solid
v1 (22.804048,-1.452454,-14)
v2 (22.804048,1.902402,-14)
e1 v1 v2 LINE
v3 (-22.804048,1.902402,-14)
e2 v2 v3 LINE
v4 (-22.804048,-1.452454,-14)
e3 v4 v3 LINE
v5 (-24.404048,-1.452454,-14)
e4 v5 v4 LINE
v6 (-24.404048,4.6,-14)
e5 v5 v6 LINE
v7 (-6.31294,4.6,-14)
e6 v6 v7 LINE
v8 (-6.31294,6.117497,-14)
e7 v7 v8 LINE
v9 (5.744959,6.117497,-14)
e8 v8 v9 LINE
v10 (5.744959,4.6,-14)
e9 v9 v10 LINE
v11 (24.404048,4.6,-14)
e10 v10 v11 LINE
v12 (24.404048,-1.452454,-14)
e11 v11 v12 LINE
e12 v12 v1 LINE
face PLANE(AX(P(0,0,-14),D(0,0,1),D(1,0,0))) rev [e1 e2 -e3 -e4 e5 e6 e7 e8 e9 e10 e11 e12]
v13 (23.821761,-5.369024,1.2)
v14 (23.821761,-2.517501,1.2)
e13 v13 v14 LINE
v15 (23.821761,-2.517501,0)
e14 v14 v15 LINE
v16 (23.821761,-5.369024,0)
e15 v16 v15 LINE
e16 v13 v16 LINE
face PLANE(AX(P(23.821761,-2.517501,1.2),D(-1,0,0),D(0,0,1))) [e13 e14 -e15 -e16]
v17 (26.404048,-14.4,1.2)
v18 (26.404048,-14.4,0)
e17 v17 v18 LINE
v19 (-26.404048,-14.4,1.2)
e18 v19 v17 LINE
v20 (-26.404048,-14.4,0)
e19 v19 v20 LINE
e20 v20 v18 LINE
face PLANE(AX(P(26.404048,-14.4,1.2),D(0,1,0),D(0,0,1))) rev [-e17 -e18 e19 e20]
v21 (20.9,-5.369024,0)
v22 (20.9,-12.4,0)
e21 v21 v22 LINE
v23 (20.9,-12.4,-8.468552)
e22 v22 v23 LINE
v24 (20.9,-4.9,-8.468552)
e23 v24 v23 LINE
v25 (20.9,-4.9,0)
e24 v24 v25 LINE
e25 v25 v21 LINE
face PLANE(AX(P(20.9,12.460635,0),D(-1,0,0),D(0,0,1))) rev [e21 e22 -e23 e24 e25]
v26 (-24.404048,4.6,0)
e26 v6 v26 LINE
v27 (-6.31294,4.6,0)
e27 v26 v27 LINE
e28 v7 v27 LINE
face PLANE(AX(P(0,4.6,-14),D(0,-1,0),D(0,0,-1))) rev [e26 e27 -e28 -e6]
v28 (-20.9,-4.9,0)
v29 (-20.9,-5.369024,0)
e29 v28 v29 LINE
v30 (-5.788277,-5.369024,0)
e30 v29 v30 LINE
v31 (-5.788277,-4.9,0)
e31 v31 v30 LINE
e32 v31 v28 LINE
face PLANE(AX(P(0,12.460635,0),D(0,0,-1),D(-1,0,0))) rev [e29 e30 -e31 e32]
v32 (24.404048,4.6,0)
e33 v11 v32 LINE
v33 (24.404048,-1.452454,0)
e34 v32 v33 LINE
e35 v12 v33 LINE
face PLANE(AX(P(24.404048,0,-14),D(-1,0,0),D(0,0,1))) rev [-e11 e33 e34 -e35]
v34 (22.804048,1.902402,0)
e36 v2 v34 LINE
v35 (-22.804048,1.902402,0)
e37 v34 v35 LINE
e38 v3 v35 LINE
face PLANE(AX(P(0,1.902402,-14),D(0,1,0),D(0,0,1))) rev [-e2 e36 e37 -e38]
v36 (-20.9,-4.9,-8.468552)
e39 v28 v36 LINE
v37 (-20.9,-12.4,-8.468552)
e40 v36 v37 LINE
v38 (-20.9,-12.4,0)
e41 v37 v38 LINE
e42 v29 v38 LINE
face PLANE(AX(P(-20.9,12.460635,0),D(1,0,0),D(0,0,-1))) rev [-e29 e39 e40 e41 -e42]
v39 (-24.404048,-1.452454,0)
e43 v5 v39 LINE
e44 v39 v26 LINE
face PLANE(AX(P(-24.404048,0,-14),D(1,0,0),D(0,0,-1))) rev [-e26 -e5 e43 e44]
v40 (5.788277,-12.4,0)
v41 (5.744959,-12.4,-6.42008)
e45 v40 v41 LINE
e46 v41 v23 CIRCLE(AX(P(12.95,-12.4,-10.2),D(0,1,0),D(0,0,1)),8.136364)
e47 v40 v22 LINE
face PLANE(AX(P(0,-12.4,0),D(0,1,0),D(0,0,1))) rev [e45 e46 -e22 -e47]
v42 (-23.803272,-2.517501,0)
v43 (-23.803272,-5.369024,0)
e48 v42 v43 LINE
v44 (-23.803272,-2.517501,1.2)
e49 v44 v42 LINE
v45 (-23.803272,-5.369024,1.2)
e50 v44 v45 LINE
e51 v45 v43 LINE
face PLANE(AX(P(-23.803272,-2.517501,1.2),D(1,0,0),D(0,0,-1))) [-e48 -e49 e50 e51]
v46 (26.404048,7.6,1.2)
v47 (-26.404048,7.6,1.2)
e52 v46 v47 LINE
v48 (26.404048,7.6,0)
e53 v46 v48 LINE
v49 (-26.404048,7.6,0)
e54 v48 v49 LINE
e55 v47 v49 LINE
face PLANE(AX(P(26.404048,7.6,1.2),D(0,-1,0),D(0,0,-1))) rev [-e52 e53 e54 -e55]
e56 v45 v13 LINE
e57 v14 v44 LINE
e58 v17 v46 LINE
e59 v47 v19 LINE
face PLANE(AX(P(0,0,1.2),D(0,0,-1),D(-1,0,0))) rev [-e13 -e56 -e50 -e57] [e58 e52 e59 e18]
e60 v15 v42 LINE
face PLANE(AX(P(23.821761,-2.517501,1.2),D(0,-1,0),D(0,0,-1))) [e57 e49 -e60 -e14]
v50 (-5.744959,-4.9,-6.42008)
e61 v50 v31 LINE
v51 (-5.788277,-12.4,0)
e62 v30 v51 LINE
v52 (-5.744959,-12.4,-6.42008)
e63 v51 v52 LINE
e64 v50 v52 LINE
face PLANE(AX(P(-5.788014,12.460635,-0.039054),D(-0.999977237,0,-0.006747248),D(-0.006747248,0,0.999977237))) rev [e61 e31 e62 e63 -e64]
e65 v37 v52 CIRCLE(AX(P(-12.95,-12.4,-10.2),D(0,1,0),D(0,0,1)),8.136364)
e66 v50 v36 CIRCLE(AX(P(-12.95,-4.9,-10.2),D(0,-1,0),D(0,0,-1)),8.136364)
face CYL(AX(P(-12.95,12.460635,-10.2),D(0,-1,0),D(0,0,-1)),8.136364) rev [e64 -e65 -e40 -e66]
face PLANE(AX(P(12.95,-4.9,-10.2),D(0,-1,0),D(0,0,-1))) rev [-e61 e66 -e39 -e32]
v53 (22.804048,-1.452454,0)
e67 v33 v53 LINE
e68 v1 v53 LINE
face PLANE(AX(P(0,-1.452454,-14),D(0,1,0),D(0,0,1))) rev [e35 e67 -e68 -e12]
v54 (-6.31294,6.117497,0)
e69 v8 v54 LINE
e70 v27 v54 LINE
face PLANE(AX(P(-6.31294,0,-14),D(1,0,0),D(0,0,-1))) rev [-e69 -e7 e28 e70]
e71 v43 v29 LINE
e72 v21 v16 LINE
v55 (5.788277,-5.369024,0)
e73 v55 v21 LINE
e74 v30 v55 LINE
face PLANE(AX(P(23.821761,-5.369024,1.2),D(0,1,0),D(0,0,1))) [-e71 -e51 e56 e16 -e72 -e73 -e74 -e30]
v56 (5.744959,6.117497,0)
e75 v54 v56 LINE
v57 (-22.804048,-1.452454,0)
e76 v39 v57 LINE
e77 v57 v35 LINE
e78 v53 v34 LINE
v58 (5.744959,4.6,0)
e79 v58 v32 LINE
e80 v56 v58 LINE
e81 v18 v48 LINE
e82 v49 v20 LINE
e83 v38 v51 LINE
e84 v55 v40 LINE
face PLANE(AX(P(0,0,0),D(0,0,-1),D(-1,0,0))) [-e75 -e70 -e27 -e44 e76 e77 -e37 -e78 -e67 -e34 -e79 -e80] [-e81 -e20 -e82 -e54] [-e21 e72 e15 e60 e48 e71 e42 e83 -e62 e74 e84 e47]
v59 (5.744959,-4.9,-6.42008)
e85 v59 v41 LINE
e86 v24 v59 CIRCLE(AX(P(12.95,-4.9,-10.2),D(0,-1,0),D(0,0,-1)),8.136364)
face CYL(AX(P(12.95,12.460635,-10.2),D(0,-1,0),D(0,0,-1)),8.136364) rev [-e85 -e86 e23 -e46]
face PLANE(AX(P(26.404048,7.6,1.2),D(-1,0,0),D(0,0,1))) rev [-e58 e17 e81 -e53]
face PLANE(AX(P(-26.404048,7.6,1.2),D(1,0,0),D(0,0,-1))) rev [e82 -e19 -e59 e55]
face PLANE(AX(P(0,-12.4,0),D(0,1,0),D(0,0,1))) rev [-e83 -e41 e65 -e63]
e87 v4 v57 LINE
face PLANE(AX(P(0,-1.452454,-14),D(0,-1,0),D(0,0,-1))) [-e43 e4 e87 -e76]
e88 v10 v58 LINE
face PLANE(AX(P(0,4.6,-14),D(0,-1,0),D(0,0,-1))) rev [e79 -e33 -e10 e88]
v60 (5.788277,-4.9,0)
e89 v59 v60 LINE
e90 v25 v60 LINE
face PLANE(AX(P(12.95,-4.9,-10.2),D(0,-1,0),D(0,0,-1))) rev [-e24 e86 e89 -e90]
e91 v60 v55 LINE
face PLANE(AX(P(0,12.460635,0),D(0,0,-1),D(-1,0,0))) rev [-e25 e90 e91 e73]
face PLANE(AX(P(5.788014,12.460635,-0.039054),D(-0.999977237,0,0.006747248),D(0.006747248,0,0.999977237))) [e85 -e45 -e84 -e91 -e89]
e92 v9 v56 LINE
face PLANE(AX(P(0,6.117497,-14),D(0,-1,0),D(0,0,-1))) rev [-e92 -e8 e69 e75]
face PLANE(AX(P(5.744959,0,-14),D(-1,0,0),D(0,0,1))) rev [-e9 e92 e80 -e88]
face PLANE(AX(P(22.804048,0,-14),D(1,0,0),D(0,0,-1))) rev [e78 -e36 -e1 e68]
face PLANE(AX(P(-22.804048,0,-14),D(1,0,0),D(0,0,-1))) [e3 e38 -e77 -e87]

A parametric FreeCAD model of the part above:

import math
import FreeCAD as App
import Part
import Sketcher
from FreeCAD import Vector
Q = App.Units.Quantity

doc = App.newDocument("Part")
body = doc.addObject("PartDesign::Body", "Body")

sketch1 = body.newObject("Sketcher::SketchObject", "Sketch")
sketch1.AttachmentSupport = (doc.getObject("XZ_Plane"), [""])
sketch1.MapMode = "FlatFace"
sketch1.AttachmentOffset = App.Placement(Vector(0, 0, 12.4), App.Rotation())
sketch1.addGeometry([
    Part.LineSegment(Vector(20.9, 0, 0), Vector(20.9, -8.468552, 0)),
    Part.ArcOfCircle(Part.Circle(Vector(12.95, -10.2, 0), Vector(0, 0, 1), 8.136364), math.radians(12.286708), math.radians(152.31753)),
    Part.LineSegment(Vector(5.744959, -6.42008, 0), Vector(5.788277, 0, 0)),
    Part.LineSegment(Vector(5.788277, 0, 0), Vector(20.9, 0, 0)),
], False)
sketch1.addConstraint([
    Sketcher.Constraint("Coincident", 0, 2, 1, 1),
    Sketcher.Constraint("Coincident", 1, 2, 2, 1),
    Sketcher.Constraint("Coincident", 2, 2, 3, 1),
    Sketcher.Constraint("Coincident", 3, 2, 0, 1),
    Sketcher.Constraint("Vertical", 0),
    Sketcher.Constraint("Horizontal", 3),
    Sketcher.Constraint("PointOnObject", 2, 2, -1),
    Sketcher.Constraint("DistanceY", 1, 3, -1, 1, Q("10.2 mm")),
    Sketcher.Constraint("DistanceX", -1, 1, 0, 2, Q("20.9 mm")),
    Sketcher.Constraint("DistanceX", -1, 1, 1, 3, Q("12.95 mm")),
    Sketcher.Constraint("Radius", 1, Q("8.136364 mm")),
    Sketcher.Constraint("DistanceX", 3, 1, 3, 2, Q("15.111723 mm")),
    Sketcher.Constraint("DistanceX", -1, 1, 1, 2, Q("5.744959 mm")),
])
pad1 = body.newObject("PartDesign::Pad", "Pad")
pad1.Profile = sketch1
pad1.Length = 7.5
pad1.Reversed = True
body2 = doc.addObject("PartDesign::Body", "Body001")

sketch2 = body2.newObject("Sketcher::SketchObject", "Sketch001")
sketch2.AttachmentSupport = (doc.getObject("XZ_Plane001"), [""])
sketch2.MapMode = "FlatFace"
sketch2.AttachmentOffset = App.Placement(Vector(0, 0, 12.4), App.Rotation())
sketch2.addGeometry([
    Part.ArcOfCircle(Part.Circle(Vector(-12.95, -10.2, 0), Vector(0, 0, 1), 8.136364), math.radians(27.68247), math.radians(167.713292)),
    Part.LineSegment(Vector(-20.9, -8.468552, 0), Vector(-20.9, 0, 0)),
    Part.LineSegment(Vector(-20.9, 0, 0), Vector(-5.788277, 0, 0)),
    Part.LineSegment(Vector(-5.788277, 0, 0), Vector(-5.744959, -6.42008, 0)),
], False)
sketch2.addConstraint([
    Sketcher.Constraint("Coincident", 0, 2, 1, 1),
    Sketcher.Constraint("Coincident", 1, 2, 2, 1),
    Sketcher.Constraint("Coincident", 2, 2, 3, 1),
    Sketcher.Constraint("Coincident", 3, 2, 0, 1),
    Sketcher.Constraint("Vertical", 1),
    Sketcher.Constraint("Horizontal", 2),
    Sketcher.Constraint("PointOnObject", 1, 2, -1),
    Sketcher.Constraint("DistanceY", 0, 3, -1, 1, Q("10.2 mm")),
    Sketcher.Constraint("DistanceX", 0, 2, -1, 1, Q("20.9 mm")),
    Sketcher.Constraint("DistanceX", 0, 3, -1, 1, Q("12.95 mm")),
    Sketcher.Constraint("Radius", 0, Q("8.136364 mm")),
    Sketcher.Constraint("DistanceX", 2, 1, 2, 2, Q("15.111723 mm")),
    Sketcher.Constraint("DistanceX", 3, 2, -1, 1, Q("5.744959 mm")),
])
pad2 = body2.newObject("PartDesign::Pad", "Pad001")
pad2.Profile = sketch2
pad2.Length = 7.5
pad2.Reversed = True
body3 = doc.addObject("PartDesign::Body", "Body002")

sketch3 = body3.newObject("Sketcher::SketchObject", "Sketch002")
sketch3.AttachmentSupport = (doc.getObject("XY_Plane002"), [""])
sketch3.MapMode = "FlatFace"
sketch3.addGeometry([
    Part.LineSegment(Vector(24.404048, -1.452454, 0), Vector(24.404048, 4.6, 0)),
    Part.LineSegment(Vector(24.404048, 4.6, 0), Vector(5.744959, 4.6, 0)),
    Part.LineSegment(Vector(5.744959, 4.6, 0), Vector(5.744959, 6.117497, 0)),
    Part.LineSegment(Vector(5.744959, 6.117497, 0), Vector(-6.31294, 6.117497, 0)),
    Part.LineSegment(Vector(-6.31294, 6.117497, 0), Vector(-6.31294, 4.6, 0)),
    Part.LineSegment(Vector(-6.31294, 4.6, 0), Vector(-24.404048, 4.6, 0)),
    Part.LineSegment(Vector(-24.404048, 4.6, 0), Vector(-24.404048, -1.452454, 0)),
    Part.LineSegment(Vector(-24.404048, -1.452454, 0), Vector(-22.804048, -1.452454, 0)),
    Part.LineSegment(Vector(-22.804048, -1.452454, 0), Vector(-22.804048, 1.902402, 0)),
    Part.LineSegment(Vector(-22.804048, 1.902402, 0), Vector(22.804048, 1.902402, 0)),
    Part.LineSegment(Vector(22.804048, 1.902402, 0), Vector(22.804048, -1.452454, 0)),
    Part.LineSegment(Vector(22.804048, -1.452454, 0), Vector(24.404048, -1.452454, 0)),
], False)
sketch3.addConstraint([
    Sketcher.Constraint("Coincident", 0, 2, 1, 1),
    Sketcher.Constraint("Coincident", 1, 2, 2, 1),
    Sketcher.Constraint("Coincident", 2, 2, 3, 1),
    Sketcher.Constraint("Coincident", 3, 2, 4, 1),
    Sketcher.Constraint("Coincident", 4, 2, 5, 1),
    Sketcher.Constraint("Coincident", 5, 2, 6, 1),
    Sketcher.Constraint("Coincident", 6, 2, 7, 1),
    Sketcher.Constraint("Coincident", 7, 2, 8, 1),
    Sketcher.Constraint("Coincident", 8, 2, 9, 1),
    Sketcher.Constraint("Coincident", 9, 2, 10, 1),
    Sketcher.Constraint("Coincident", 10, 2, 11, 1),
    Sketcher.Constraint("Coincident", 11, 2, 0, 1),
    Sketcher.Constraint("Vertical", 0),
    Sketcher.Constraint("Horizontal", 1),
    Sketcher.Constraint("Vertical", 2),
    Sketcher.Constraint("Horizontal", 3),
    Sketcher.Constraint("Vertical", 4),
    Sketcher.Constraint("Horizontal", 5),
    Sketcher.Constraint("Vertical", 6),
    Sketcher.Constraint("Horizontal", 7),
    Sketcher.Constraint("Vertical", 8),
    Sketcher.Constraint("Horizontal", 9),
    Sketcher.Constraint("Vertical", 10),
    Sketcher.Constraint("Horizontal", 11),
    Sketcher.Constraint("Symmetric", 0, 2, 5, 2, -2),
    Sketcher.Constraint("Symmetric", 7, 2, 10, 2, -2),
    Sketcher.Constraint("DistanceX", 7, 1, 7, 2, Q("1.6 mm")),
    Sketcher.Constraint("DistanceY", -1, 1, 0, 2, Q("4.6 mm")),
    Sketcher.Constraint("DistanceX", 3, 2, 3, 1, Q("12.057899 mm")),
    Sketcher.Constraint("DistanceX", 1, 2, 1, 1, Q("18.659089 mm")),
    Sketcher.Constraint("DistanceX", 5, 2, 5, 1, Q("18.091107 mm")),
    Sketcher.Constraint("DistanceY", 0, 1, 0, 2, Q("6.052454 mm")),
    Sketcher.Constraint("DistanceY", 2, 1, 2, 2, Q("1.517497 mm")),
    Sketcher.Constraint("DistanceY", 8, 1, 8, 2, Q("3.354856 mm")),
])
pad3 = body3.newObject("PartDesign::Pad", "Pad002")
pad3.Profile = sketch3
pad3.Length = 14
pad3.Reversed = True
body.AllowCompound = True
doc.recompute()

boolean = body.newObject("PartDesign::Boolean", "Boolean")
boolean.Type = "Fuse"
boolean.addObjects([body2])
doc.recompute()

boolean2 = body.newObject("PartDesign::Boolean", "Boolean001")
boolean2.Type = "Fuse"
boolean2.addObjects([body3])

sketch4 = body.newObject("Sketcher::SketchObject", "Sketch003")
sketch4.AttachmentSupport = (doc.getObject("XY_Plane"), [""])
sketch4.MapMode = "FlatFace"
sketch4.addGeometry([
    Part.LineSegment(Vector(-26.404048, 7.6, 0), Vector(-26.404048, -14.4, 0)),
    Part.LineSegment(Vector(-26.404048, -14.4, 0), Vector(26.404048, -14.4, 0)),
    Part.LineSegment(Vector(26.404048, -14.4, 0), Vector(26.404048, 7.6, 0)),
    Part.LineSegment(Vector(26.404048, 7.6, 0), Vector(-26.404048, 7.6, 0)),
    Part.LineSegment(Vector(23.821761, -5.369024, 0), Vector(-23.803272, -5.369024, 0)),
    Part.LineSegment(Vector(-23.803272, -5.369024, 0), Vector(-23.803272, -2.517501, 0)),
    Part.LineSegment(Vector(-23.803272, -2.517501, 0), Vector(23.821761, -2.517501, 0)),
    Part.LineSegment(Vector(23.821761, -2.517501, 0), Vector(23.821761, -5.369024, 0)),
], False)
sketch4.addConstraint([
    Sketcher.Constraint("Coincident", 0, 2, 1, 1),
    Sketcher.Constraint("Coincident", 1, 2, 2, 1),
    Sketcher.Constraint("Coincident", 2, 2, 3, 1),
    Sketcher.Constraint("Coincident", 3, 2, 0, 1),
    Sketcher.Constraint("Coincident", 4, 2, 5, 1),
    Sketcher.Constraint("Coincident", 5, 2, 6, 1),
    Sketcher.Constraint("Coincident", 6, 2, 7, 1),
    Sketcher.Constraint("Coincident", 7, 2, 4, 1),
    Sketcher.Constraint("Vertical", 0),
    Sketcher.Constraint("Horizontal", 1),
    Sketcher.Constraint("Vertical", 2),
    Sketcher.Constraint("Horizontal", 3),
    Sketcher.Constraint("Horizontal", 4),
    Sketcher.Constraint("Vertical", 5),
    Sketcher.Constraint("Horizontal", 6),
    Sketcher.Constraint("Vertical", 7),
    Sketcher.Constraint("DistanceY", 0, 2, 0, 1, Q("22 mm")),
    Sketcher.Constraint("DistanceY", 0, 2, -1, 1, Q("14.4 mm")),
    Sketcher.Constraint("DistanceY", 5, 2, -1, 1, Q("2.517501 mm")),
    Sketcher.Constraint("DistanceX", 1, 1, 1, 2, Q("52.808095 mm")),
    Sketcher.Constraint("DistanceX", 4, 2, 4, 1, Q("47.625032 mm")),
    Sketcher.Constraint("DistanceY", 5, 1, 5, 2, Q("2.851522 mm")),
    Sketcher.Constraint("DistanceX", 4, 2, -1, 1, Q("23.803272 mm")),
    Sketcher.Constraint("DistanceX", 4, 2, 1, 2, Q("50.207319 mm")),
])
pad4 = body.newObject("PartDesign::Pad", "Pad003")
pad4.Profile = sketch4
pad4.Length = 1.2

doc.recompute()
